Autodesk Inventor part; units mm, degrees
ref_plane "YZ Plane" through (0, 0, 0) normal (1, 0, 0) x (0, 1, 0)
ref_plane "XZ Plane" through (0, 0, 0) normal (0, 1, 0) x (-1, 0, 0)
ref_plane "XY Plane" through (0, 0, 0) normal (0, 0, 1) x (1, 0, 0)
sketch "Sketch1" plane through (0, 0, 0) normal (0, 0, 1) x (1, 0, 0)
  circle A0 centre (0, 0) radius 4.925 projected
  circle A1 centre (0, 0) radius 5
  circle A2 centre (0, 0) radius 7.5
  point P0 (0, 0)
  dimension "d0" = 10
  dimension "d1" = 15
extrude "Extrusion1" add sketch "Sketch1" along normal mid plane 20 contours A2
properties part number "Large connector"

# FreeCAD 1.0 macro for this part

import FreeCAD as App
import Part
import Sketcher
from FreeCAD import Vector
Q = App.Units.Quantity

doc = App.newDocument("Part")
body = doc.addObject("PartDesign::Body", "Body")

sketch1 = body.newObject("Sketcher::SketchObject", "Sketch")
sketch1.AttachmentSupport = (doc.getObject("XY_Plane"), [""])
sketch1.MapMode = "FlatFace"
sketch1.addGeometry([
    Part.Circle(Vector(0, 0, 0), Vector(0, 0, 1), 8),
    Part.Circle(Vector(0, 0, 0), Vector(0, 0, 1), 5),
], False)
sketch1.addConstraint([
    Sketcher.Constraint("Coincident", 0, 3, -1, 1),
    Sketcher.Constraint("Coincident", 1, 3, -1, 1),
    Sketcher.Constraint("Diameter", 0, Q("15 mm")),
    Sketcher.Constraint("Diameter", 1, Q("10 mm")),
])
pad1 = body.newObject("PartDesign::Pad", "Pad")
pad1.Profile = sketch1
pad1.Length = 20
pad1.Midplane = True

doc.recompute()
